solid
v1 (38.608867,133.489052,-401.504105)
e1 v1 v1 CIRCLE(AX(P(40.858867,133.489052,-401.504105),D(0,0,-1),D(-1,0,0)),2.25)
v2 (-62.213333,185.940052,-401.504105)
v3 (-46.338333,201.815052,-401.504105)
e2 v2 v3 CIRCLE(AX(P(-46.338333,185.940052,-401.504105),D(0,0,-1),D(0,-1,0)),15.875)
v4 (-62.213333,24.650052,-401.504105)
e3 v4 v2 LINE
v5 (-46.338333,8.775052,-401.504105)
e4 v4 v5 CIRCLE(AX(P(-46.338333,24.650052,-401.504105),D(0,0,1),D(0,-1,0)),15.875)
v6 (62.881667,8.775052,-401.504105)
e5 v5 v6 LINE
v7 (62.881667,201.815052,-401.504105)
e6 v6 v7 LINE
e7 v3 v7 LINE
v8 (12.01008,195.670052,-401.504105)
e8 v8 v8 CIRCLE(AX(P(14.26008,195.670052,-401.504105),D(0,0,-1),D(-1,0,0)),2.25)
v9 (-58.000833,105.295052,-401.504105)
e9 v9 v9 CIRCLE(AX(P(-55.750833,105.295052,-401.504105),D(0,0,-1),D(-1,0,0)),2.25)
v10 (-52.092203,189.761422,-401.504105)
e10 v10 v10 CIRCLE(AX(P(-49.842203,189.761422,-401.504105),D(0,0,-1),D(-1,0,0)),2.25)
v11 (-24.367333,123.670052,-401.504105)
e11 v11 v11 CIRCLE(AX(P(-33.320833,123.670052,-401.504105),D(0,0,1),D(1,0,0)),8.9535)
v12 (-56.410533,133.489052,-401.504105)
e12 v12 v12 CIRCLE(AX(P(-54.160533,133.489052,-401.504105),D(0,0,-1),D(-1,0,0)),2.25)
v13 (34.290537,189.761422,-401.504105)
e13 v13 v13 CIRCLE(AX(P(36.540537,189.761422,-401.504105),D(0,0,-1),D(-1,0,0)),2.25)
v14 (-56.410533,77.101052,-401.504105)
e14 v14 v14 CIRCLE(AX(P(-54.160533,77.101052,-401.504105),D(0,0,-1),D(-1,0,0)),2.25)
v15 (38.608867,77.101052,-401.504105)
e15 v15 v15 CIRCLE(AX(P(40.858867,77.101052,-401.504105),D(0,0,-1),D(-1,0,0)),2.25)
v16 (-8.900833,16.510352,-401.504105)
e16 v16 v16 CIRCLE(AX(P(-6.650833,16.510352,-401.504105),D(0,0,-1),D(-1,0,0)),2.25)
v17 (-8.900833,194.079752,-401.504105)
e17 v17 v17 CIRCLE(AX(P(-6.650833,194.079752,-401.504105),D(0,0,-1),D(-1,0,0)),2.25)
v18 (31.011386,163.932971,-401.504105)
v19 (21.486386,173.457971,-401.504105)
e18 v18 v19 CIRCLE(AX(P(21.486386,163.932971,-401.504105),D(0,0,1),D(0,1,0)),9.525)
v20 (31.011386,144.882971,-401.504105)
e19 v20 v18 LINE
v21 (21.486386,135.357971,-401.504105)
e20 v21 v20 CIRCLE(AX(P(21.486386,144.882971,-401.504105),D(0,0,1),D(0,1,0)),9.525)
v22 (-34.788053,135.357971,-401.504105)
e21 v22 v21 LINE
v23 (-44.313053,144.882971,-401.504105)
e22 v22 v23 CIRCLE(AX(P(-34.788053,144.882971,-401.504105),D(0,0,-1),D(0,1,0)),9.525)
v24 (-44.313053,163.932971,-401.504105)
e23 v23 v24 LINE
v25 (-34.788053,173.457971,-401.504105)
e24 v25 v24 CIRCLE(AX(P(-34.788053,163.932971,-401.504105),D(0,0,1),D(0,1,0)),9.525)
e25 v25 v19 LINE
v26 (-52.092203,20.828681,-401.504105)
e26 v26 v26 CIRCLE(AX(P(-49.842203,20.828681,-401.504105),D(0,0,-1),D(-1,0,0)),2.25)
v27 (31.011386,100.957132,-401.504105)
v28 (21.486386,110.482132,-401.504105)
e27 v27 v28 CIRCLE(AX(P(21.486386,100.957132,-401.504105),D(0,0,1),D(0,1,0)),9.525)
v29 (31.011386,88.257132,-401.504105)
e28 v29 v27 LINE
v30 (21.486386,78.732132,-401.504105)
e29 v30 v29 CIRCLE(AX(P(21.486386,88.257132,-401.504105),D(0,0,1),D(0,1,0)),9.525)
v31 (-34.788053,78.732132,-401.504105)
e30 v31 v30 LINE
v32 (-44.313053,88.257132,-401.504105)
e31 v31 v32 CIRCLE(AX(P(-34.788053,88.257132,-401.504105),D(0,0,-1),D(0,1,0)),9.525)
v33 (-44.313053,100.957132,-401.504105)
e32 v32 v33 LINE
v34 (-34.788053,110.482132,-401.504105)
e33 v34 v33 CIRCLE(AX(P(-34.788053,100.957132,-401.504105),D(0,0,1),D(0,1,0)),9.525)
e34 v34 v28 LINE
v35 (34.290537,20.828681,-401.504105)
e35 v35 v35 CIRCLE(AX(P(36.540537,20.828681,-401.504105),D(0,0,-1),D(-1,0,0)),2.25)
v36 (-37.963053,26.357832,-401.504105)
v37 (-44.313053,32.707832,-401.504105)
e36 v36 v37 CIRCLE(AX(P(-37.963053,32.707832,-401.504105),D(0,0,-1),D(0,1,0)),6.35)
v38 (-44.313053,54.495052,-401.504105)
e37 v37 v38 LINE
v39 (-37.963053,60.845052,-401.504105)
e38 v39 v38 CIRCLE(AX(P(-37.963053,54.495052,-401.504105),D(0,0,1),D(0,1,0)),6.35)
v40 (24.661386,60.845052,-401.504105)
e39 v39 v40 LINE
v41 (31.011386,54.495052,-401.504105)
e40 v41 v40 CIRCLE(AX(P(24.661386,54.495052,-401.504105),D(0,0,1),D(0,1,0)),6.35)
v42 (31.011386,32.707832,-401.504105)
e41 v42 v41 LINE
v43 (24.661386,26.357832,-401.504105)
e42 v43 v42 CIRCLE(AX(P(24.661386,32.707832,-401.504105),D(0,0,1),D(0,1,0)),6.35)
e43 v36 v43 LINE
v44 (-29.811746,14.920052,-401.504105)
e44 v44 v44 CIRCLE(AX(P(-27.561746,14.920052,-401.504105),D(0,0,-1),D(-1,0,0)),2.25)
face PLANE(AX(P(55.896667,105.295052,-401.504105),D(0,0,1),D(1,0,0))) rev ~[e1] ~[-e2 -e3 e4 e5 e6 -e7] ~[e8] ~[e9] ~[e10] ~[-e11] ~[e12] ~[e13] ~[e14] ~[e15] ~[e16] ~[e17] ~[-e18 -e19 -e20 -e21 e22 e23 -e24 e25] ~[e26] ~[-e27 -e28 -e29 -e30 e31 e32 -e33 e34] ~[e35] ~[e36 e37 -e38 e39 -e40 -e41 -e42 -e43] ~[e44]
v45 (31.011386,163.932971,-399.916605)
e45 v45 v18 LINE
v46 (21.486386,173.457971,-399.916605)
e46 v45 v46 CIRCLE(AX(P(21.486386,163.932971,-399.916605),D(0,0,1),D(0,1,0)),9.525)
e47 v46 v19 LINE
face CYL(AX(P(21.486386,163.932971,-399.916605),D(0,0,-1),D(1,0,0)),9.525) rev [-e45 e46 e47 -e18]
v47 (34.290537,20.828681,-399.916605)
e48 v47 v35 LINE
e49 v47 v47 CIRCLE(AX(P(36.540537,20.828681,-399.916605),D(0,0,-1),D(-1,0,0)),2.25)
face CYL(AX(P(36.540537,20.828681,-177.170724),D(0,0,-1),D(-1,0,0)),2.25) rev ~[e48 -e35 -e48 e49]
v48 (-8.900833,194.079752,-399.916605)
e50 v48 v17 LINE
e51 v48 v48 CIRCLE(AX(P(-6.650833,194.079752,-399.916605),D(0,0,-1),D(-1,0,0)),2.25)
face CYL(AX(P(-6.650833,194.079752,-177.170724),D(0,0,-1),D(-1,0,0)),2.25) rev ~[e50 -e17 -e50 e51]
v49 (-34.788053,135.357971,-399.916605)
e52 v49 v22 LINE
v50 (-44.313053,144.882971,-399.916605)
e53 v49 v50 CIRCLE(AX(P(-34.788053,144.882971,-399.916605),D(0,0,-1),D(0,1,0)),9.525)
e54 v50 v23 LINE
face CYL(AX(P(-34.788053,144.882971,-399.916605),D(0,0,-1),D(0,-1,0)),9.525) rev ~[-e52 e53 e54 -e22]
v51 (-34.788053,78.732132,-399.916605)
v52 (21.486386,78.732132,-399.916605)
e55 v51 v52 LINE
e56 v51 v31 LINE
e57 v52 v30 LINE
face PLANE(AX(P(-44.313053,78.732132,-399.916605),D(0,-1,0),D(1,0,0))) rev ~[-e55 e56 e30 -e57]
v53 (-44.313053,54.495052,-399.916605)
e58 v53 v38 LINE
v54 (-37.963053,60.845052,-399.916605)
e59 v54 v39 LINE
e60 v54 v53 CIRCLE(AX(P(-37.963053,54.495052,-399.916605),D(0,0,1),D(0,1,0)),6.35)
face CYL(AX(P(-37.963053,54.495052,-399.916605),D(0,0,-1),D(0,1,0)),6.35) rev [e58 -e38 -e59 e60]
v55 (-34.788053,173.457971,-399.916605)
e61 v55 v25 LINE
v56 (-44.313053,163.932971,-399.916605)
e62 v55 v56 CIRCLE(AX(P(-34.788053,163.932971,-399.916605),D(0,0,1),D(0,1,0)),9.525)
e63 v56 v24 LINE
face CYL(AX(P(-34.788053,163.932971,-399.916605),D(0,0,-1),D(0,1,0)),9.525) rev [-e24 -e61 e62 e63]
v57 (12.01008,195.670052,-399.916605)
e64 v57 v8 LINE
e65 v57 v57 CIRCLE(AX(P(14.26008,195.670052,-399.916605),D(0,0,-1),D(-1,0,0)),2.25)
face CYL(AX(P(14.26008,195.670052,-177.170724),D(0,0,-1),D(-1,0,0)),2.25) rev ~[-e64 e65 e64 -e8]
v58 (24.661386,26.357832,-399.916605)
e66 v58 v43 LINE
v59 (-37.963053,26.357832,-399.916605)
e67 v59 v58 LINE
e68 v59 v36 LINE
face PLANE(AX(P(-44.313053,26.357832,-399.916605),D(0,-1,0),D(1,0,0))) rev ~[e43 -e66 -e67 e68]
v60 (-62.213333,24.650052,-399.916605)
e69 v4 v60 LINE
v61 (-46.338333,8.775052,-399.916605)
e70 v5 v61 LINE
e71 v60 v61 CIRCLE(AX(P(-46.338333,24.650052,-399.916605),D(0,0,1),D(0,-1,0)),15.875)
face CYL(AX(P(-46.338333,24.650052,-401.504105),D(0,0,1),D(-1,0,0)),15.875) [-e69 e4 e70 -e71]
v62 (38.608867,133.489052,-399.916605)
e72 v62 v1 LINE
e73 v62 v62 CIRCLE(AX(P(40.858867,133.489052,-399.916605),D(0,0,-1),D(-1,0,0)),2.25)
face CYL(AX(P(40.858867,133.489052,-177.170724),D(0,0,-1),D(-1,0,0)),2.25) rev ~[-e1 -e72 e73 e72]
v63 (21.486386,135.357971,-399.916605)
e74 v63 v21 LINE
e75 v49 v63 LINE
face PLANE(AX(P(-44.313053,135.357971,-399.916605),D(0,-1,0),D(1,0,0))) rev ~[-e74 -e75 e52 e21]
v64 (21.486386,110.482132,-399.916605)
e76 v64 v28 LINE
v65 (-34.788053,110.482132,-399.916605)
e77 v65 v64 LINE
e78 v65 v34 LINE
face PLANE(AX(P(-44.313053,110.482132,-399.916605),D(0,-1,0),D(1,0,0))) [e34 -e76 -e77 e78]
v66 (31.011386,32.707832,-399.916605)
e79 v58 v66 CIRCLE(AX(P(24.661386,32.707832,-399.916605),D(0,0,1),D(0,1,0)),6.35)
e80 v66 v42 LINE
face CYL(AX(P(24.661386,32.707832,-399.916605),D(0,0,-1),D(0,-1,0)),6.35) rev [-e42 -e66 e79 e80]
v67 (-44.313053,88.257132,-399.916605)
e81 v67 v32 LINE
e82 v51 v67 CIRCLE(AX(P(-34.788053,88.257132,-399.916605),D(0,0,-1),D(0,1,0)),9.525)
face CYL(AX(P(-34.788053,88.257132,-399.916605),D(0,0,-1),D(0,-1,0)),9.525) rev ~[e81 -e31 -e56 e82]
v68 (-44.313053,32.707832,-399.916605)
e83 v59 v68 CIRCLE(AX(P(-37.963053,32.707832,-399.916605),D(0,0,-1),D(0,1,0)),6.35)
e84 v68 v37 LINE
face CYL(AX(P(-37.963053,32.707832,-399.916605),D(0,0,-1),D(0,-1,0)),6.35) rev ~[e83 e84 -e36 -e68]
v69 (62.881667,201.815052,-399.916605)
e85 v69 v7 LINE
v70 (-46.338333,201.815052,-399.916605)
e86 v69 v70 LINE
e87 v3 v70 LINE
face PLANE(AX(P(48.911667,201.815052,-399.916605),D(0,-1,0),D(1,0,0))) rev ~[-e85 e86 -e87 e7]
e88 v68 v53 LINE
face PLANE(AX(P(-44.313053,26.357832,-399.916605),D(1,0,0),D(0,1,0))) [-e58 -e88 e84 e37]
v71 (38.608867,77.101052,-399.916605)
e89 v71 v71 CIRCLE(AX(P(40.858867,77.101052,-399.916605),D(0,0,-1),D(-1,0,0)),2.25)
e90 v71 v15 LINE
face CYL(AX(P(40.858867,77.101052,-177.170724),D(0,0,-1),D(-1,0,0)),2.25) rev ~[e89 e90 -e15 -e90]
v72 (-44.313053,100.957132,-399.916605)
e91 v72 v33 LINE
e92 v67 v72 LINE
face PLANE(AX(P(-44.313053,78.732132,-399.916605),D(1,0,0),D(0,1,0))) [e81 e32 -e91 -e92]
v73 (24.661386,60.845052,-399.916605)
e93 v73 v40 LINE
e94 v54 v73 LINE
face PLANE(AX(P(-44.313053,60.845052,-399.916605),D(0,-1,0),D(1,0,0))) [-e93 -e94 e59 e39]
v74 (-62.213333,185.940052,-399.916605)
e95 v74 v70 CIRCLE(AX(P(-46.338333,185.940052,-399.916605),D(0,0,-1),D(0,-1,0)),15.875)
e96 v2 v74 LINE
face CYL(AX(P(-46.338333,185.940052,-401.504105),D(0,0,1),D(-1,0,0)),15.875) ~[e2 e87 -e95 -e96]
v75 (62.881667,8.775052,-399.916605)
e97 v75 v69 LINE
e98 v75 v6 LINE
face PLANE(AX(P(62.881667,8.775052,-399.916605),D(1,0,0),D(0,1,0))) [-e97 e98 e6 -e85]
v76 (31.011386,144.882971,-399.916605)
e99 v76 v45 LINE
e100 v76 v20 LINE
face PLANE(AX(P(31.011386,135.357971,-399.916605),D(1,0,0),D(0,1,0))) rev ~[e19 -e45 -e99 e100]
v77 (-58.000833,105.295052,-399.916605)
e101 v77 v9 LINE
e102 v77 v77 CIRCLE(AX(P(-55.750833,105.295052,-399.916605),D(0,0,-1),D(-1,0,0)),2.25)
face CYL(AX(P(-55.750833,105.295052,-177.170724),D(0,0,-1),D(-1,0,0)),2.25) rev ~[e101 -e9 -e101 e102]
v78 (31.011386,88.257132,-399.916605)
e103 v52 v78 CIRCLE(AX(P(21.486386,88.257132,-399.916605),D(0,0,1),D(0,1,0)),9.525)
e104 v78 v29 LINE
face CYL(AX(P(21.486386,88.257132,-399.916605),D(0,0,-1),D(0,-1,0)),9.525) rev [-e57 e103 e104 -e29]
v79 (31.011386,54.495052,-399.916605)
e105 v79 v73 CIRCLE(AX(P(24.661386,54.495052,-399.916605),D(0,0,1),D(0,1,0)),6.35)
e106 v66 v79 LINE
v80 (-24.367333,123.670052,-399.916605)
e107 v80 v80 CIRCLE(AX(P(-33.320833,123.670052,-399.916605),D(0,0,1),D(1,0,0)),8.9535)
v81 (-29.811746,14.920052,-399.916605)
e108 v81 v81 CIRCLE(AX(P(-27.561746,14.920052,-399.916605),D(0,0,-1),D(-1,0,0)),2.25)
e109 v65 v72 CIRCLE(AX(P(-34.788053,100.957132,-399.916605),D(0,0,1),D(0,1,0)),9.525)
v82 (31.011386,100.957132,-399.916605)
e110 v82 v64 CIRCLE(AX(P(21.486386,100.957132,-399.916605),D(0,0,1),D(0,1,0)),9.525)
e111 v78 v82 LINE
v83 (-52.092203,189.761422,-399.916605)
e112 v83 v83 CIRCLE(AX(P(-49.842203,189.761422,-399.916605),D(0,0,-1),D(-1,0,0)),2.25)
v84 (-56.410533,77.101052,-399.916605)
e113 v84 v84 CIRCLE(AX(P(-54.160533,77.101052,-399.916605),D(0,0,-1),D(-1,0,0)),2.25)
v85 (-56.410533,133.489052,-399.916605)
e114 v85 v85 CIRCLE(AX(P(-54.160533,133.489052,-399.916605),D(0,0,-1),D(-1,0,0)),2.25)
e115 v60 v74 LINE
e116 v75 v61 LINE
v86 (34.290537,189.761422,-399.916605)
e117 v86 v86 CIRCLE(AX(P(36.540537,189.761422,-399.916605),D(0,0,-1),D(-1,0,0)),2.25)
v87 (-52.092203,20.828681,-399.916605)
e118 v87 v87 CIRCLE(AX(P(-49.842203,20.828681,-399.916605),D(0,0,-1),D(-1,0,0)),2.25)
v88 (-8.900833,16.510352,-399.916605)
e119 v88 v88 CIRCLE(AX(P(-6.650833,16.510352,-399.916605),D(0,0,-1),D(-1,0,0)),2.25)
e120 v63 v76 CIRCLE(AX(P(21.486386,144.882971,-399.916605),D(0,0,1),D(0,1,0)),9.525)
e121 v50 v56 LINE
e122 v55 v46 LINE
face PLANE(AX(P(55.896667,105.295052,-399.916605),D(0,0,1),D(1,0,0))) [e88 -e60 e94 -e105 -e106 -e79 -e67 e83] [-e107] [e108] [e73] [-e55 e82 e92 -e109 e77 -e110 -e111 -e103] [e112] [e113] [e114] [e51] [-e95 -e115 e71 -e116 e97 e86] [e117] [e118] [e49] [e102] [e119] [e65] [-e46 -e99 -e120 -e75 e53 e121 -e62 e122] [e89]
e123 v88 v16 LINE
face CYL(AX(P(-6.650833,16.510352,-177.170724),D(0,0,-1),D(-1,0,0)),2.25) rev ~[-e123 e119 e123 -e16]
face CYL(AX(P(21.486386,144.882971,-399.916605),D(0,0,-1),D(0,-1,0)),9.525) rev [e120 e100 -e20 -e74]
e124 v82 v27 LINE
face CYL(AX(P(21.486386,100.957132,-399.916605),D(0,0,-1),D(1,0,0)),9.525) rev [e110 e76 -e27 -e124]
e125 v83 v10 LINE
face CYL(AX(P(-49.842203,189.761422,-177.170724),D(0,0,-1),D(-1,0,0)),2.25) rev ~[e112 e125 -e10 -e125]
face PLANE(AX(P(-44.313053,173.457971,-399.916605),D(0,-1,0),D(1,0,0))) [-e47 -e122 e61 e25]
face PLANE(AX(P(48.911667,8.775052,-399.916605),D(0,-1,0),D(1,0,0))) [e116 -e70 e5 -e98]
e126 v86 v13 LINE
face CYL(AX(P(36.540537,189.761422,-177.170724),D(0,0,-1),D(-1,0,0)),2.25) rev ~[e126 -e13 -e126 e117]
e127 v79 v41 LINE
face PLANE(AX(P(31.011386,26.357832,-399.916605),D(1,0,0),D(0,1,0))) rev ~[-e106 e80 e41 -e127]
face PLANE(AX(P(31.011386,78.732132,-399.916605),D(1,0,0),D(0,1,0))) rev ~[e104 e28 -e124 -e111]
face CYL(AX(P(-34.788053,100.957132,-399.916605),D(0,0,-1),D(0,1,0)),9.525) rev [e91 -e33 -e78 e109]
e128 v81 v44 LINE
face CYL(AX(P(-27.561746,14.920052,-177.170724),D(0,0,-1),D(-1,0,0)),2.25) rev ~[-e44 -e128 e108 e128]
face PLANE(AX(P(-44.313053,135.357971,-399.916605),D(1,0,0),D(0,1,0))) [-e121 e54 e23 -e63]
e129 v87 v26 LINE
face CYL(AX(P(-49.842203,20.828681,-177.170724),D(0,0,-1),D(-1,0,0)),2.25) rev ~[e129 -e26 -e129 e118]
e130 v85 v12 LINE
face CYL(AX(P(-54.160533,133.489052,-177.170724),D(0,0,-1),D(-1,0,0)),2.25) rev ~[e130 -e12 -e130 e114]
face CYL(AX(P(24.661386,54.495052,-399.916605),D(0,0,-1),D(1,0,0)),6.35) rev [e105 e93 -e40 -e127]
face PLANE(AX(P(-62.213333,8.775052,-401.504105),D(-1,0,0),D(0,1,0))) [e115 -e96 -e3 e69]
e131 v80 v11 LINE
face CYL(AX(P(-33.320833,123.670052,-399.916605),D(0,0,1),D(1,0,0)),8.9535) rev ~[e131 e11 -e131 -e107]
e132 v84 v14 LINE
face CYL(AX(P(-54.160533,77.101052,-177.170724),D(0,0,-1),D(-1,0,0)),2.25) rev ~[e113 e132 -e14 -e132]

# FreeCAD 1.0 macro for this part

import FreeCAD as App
import Part
import Sketcher
Q = App.Units.Quantity


def edges_at(feature, points):
    """Names of the edges that pass closest to the given points."""
    edges = feature.Shape.Edges
    near = lambda p: min(range(len(edges)), key=lambda i: edges[i].distToShape(Part.Vertex(*p))[0])
    return sorted({f"Edge{near(p) + 1}" for p in points})

doc = App.newDocument("Part")
body = doc.addObject("PartDesign::Body", "Body")

# Sketch on XY plane
sketch1 = body.newObject("Sketcher::SketchObject", "Sketch")
sketch1.AttachmentSupport = (doc.getObject("XY_Plane"), [""])
sketch1.MapMode = "FlatFace"
sketch1.AttachmentOffset = App.Placement(App.Vector(0, 0, -401.504105), App.Rotation())
sketch1.addGeometry(Part.LineSegment(App.Vector(-62.213333, 201.815052, 0), App.Vector(-62.213333, 8.775052, 0)), False)
sketch1.addGeometry(Part.LineSegment(App.Vector(-62.213333, 8.775052, 0), App.Vector(48.911667, 8.775052, 0)), False)
sketch1.addGeometry(Part.LineSegment(App.Vector(48.911667, 8.775052, 0), App.Vector(48.911667, 201.815052, 0)), False)
sketch1.addGeometry(Part.LineSegment(App.Vector(48.911667, 201.815052, 0), App.Vector(-62.213333, 201.815052, 0)), False)
sketch1.addConstraint(Sketcher.Constraint("Coincident", 0, 2, 1, 1))
sketch1.addConstraint(Sketcher.Constraint("Coincident", 1, 2, 2, 1))
sketch1.addConstraint(Sketcher.Constraint("Coincident", 2, 2, 3, 1))
sketch1.addConstraint(Sketcher.Constraint("Coincident", 3, 2, 0, 1))
sketch1.addConstraint(Sketcher.Constraint("Vertical", 0))
sketch1.addConstraint(Sketcher.Constraint("Horizontal", 1))
sketch1.addConstraint(Sketcher.Constraint("Vertical", 2))
sketch1.addConstraint(Sketcher.Constraint("Horizontal", 3))
sketch1.addConstraint(Sketcher.Constraint("DistanceY", 0, 2, 0, 1, Q("7.6 in")))
sketch1.addConstraint(Sketcher.Constraint("DistanceX", 1, 1, 1, 2, Q("4.375 in")))
sketch1.addConstraint(Sketcher.Constraint("DistanceY", -1, 1, 0, 2, Q("8.775052 mm")))
sketch1.addConstraint(Sketcher.Constraint("DistanceX", 0, 2, -1, 1, Q("62.213333 mm")))
pad1 = body.newObject("PartDesign::Pad", "Pad")
pad1.Profile = sketch1
pad1.Length = Q("0.0625 in")

# Sketch on XY plane
sketch2 = body.newObject("Sketcher::SketchObject", "Sketch001")
sketch2.AttachmentSupport = (doc.getObject("XY_Plane"), [""])
sketch2.MapMode = "FlatFace"
sketch2.AttachmentOffset = App.Placement(App.Vector(0, 0, -399.916605), App.Rotation())
sketch2.addGeometry(Part.Circle(App.Vector(36.540537, 189.761422, 0), App.Vector(0, 0, 1), 2.25), False)
sketch2.addGeometry(Part.Circle(App.Vector(-6.650833, 194.079752, 0), App.Vector(0, 0, 1), 2.25), False)
sketch2.addGeometry(Part.Circle(App.Vector(-49.842203, 189.761422, 0), App.Vector(0, 0, 1), 2.25), False)
sketch2.addGeometry(Part.Circle(App.Vector(-54.160533, 133.489052, 0), App.Vector(0, 0, 1), 2.25), False)
sketch2.addGeometry(Part.Circle(App.Vector(-54.160533, 77.101052, 0), App.Vector(0, 0, 1), 2.25), False)
sketch2.addGeometry(Part.Circle(App.Vector(-49.842203, 20.828681, 0), App.Vector(0, 0, 1), 2.25), False)
sketch2.addGeometry(Part.Circle(App.Vector(-6.650833, 16.510352, 0), App.Vector(0, 0, 1), 2.25), False)
sketch2.addGeometry(Part.Circle(App.Vector(36.540537, 20.828681, 0), App.Vector(0, 0, 1), 2.25), False)
sketch2.addGeometry(Part.Circle(App.Vector(40.858867, 77.101052, 0), App.Vector(0, 0, 1), 2.25), False)
sketch2.addGeometry(Part.Circle(App.Vector(40.858867, 133.489052, 0), App.Vector(0, 0, 1), 2.25), False)
sketch2.addGeometry(Part.Circle(App.Vector(14.26008, 195.670052, 0), App.Vector(0, 0, 1), 2.25), False)
sketch2.addGeometry(Part.Circle(App.Vector(-55.750833, 105.295052, 0), App.Vector(0, 0, 1), 2.25), False)
sketch2.addGeometry(Part.Circle(App.Vector(-27.561746, 14.920052, 0), App.Vector(0, 0, 1), 2.25), False)
sketch2.addConstraint(Sketcher.Constraint("Equal", 0, 1))
sketch2.addConstraint(Sketcher.Constraint("Equal", 1, 2))
sketch2.addConstraint(Sketcher.Constraint("Equal", 2, 3))
sketch2.addConstraint(Sketcher.Constraint("Equal", 3, 4))
sketch2.addConstraint(Sketcher.Constraint("Equal", 4, 5))
sketch2.addConstraint(Sketcher.Constraint("Equal", 5, 6))
sketch2.addConstraint(Sketcher.Constraint("Equal", 6, 7))
sketch2.addConstraint(Sketcher.Constraint("Equal", 7, 8))
sketch2.addConstraint(Sketcher.Constraint("Equal", 8, 9))
sketch2.addConstraint(Sketcher.Constraint("Equal", 9, 10))
sketch2.addConstraint(Sketcher.Constraint("Equal", 10, 11))
sketch2.addConstraint(Sketcher.Constraint("Equal", 11, 12))
sketch2.addConstraint(Sketcher.Constraint("Horizontal", 0, 3, 2, 3))
sketch2.addConstraint(Sketcher.Constraint("Horizontal", 5, 3, 7, 3))
sketch2.addConstraint(Sketcher.Constraint("Horizontal", 4, 3, 8, 3))
sketch2.addConstraint(Sketcher.Constraint("Horizontal", 3, 3, 9, 3))
sketch2.addConstraint(Sketcher.Constraint("Vertical", 3, 3, 4, 3))
sketch2.addConstraint(Sketcher.Constraint("Vertical", 2, 3, 5, 3))
sketch2.addConstraint(Sketcher.Constraint("Vertical", 1, 3, 6, 3))
sketch2.addConstraint(Sketcher.Constraint("Vertical", 0, 3, 7, 3))
sketch2.addConstraint(Sketcher.Constraint("Vertical", 8, 3, 9, 3))
sketch2.addConstraint(Sketcher.Constraint("Diameter", 0, Q("4.5 mm")))
sketch2.addConstraint(Sketcher.Constraint("DistanceY", 4, 3, 3, 3, Q("2.22 in")))
sketch2.addConstraint(Sketcher.Constraint("DistanceY", 11, 3, 3, 3, Q("1.11 in")))
sketch2.addConstraint(Sketcher.Constraint("DistanceX", 3, 3, 1, 3, Q("47.5097 mm")))
sketch2.addConstraint(Sketcher.Constraint("DistanceY", 3, 3, 1, 3, Q("60.5907 mm")))
sketch2.addConstraint(Sketcher.Constraint("DistanceY", 6, 3, 4, 3, Q("60.5907 mm")))
sketch2.addConstraint(Sketcher.Constraint("DistanceX", 6, 3, 8, 3, Q("47.5097 mm")))
sketch2.addConstraint(Sketcher.Constraint("DistanceY", 1, 3, 10, 3, Q("1.5903 mm")))
sketch2.addConstraint(Sketcher.Constraint("DistanceX", 11, 3, 3, 3, Q("1.5903 mm")))
sketch2.addConstraint(Sketcher.Constraint("DistanceY", 12, 3, 6, 3, Q("1.5903 mm")))
sketch2.addConstraint(Sketcher.Constraint("DistanceY", -1, 1, 0, 3, Q("189.761422 mm")))
sketch2.addConstraint(Sketcher.Constraint("DistanceY", -1, 1, 1, 3, Q("194.079752 mm")))
sketch2.addConstraint(Sketcher.Constraint("DistanceY", -1, 1, 5, 3, Q("20.828681 mm")))
sketch2.addConstraint(Sketcher.Constraint("DistanceX", -1, 1, 10, 3, Q("14.26008 mm")))
sketch2.addConstraint(Sketcher.Constraint("DistanceX", 1, 3, 0, 3, Q("43.19137 mm")))
sketch2.addConstraint(Sketcher.Constraint("DistanceX", 2, 3, 1, 3, Q("43.19137 mm")))
sketch2.addConstraint(Sketcher.Constraint("DistanceX", -1, 1, 0, 3, Q("36.540537 mm")))
sketch2.addConstraint(Sketcher.Constraint("DistanceX", 12, 3, -1, 1, Q("27.561746 mm")))
doc.recompute()
hole = body.newObject("PartDesign::Hole", "Hole")
hole.Profile = sketch2
hole.ThreadType = "None"
hole.Diameter = 4.5
hole.DepthType = "ThroughAll"
doc.recompute()

fillet = body.newObject("PartDesign::Fillet", "Fillet")
fillet.Base = (hole, edges_at(hole, [(-62.213, 201.815, -400.71), (-62.213, 8.775, -400.71)]))
fillet.Radius = Q("0.625 in")

# Sketch on XY plane
sketch3 = body.newObject("Sketcher::SketchObject", "Sketch002")
sketch3.AttachmentSupport = (doc.getObject("XY_Plane"), [""])
sketch3.MapMode = "FlatFace"
sketch3.AttachmentOffset = App.Placement(App.Vector(0, 0, -399.916605), App.Rotation())
sketch3.addGeometry(Part.Circle(App.Vector(-34.590833, 43.382552, 0), App.Vector(0, 0, 1), 2.4003), False)
sketch3.addGeometry(Part.Circle(App.Vector(21.289167, 43.382552, 0), App.Vector(0, 0, 1), 2.4003), False)
sketch3.addGeometry(Part.Circle(App.Vector(-20.884725, 142.590767, 0), App.Vector(0, 0, 1), 3), False)
sketch3.addGeometry(Part.Circle(App.Vector(7.583059, 166.225176, 0), App.Vector(0, 0, 1), 3), False)
sketch3.addGeometry(Part.Circle(App.Vector(3.509167, 43.382552, 0), App.Vector(0, 0, 1), 6.477), False)
sketch3.addGeometry(Part.Circle(App.Vector(-16.810833, 43.382552, 0), App.Vector(0, 0, 1), 6.477), False)
sketch3.addGeometry(Part.Circle(App.Vector(-33.320833, 123.670052, 0), App.Vector(0, 0, 1), 6.477), False)
sketch3.addGeometry(Part.Circle(App.Vector(-6.650833, 154.407971, 0), App.Vector(0, 0, 1), 10.762), False)
sketch3.addGeometry(Part.Circle(App.Vector(-6.650833, 94.607132, 0), App.Vector(0, 0, 1), 10.762), False)
sketch3.addConstraint(Sketcher.Constraint("Equal", 0, 1))
sketch3.addConstraint(Sketcher.Constraint("Equal", 2, 3))
sketch3.addConstraint(Sketcher.Constraint("Equal", 4, 5))
sketch3.addConstraint(Sketcher.Constraint("Equal", 5, 6))
sketch3.addConstraint(Sketcher.Constraint("Equal", 7, 8))
sketch3.addConstraint(Sketcher.Constraint("Horizontal", 0, 3, 1, 3))
sketch3.addConstraint(Sketcher.Constraint("Horizontal", 1, 3, 4, 3))
sketch3.addConstraint(Sketcher.Constraint("Horizontal", 4, 3, 5, 3))
sketch3.addConstraint(Sketcher.Constraint("Vertical", 7, 3, 8, 3))
sketch3.addConstraint(Sketcher.Constraint("Diameter", 4, Q("0.51 in")))
sketch3.addConstraint(Sketcher.Constraint("Diameter", 0, Q("0.189 in")))
sketch3.addConstraint(Sketcher.Constraint("DistanceX", 0, 3, 1, 3, Q("2.2 in")))
sketch3.addConstraint(Sketcher.Constraint("DistanceX", 4, 3, 1, 3, Q("0.7 in")))
sketch3.addConstraint(Sketcher.Constraint("DistanceX", 0, 3, 5, 3, Q("0.7 in")))
sketch3.addConstraint(Sketcher.Constraint("DistanceX", 7, 3, 4, 3, Q("0.4 in")))
sketch3.addConstraint(Sketcher.Constraint("Diameter", 2, Q("6 mm")))
sketch3.addConstraint(Sketcher.Constraint("Diameter", 7, Q("21.524 mm")))
sketch3.addConstraint(Sketcher.Constraint("DistanceX", 0, 3, 6, 3, Q("0.05 in")))
sketch3.addConstraint(Sketcher.Constraint("DistanceY", 0, 3, 6, 3, Q("80.2875 mm")))
sketch3.addConstraint(Sketcher.Constraint("DistanceY", -1, 1, 0, 3, Q("43.382552 mm")))
sketch3.addConstraint(Sketcher.Constraint("DistanceX", -1, 1, 3, 3, Q("7.583059 mm")))
sketch3.addConstraint(Sketcher.Constraint("DistanceY", -1, 1, 7, 3, Q("154.407971 mm")))
sketch3.addConstraint(Sketcher.Constraint("DistanceY", -1, 1, 8, 3, Q("94.607132 mm")))
sketch3.addConstraint(Sketcher.Constraint("DistanceX", 0, 3, 2, 3, Q("13.706108 mm")))
sketch3.addConstraint(Sketcher.Constraint("DistanceY", 2, 3, 3, 3, Q("23.634409 mm")))
sketch3.addConstraint(Sketcher.Constraint("DistanceX", 3, 3, 1, 3, Q("13.706108 mm")))
sketch3.addConstraint(Sketcher.Constraint("DistanceY", -1, 1, 2, 3, Q("142.590767 mm")))
pocket1 = body.newObject("PartDesign::Pocket", "Pocket")
pocket1.Profile = sketch3
pocket1.Type = "ThroughAll"

# Sketch on XY plane
sketch4 = body.newObject("Sketcher::SketchObject", "Sketch003")
sketch4.AttachmentSupport = (doc.getObject("XY_Plane"), [""])
sketch4.MapMode = "FlatFace"
sketch4.AttachmentOffset = App.Placement(App.Vector(0, 0, -399.916605), App.Rotation())
sketch4.addGeometry(Part.LineSegment(App.Vector(48.911667, 201.815052, 0), App.Vector(48.911667, 8.775052, 0)), False)
sketch4.addGeometry(Part.LineSegment(App.Vector(48.911667, 8.775052, 0), App.Vector(62.881667, 8.775052, 0)), False)
sketch4.addGeometry(Part.LineSegment(App.Vector(62.881667, 8.775052, 0), App.Vector(62.881667, 201.815052, 0)), False)
sketch4.addGeometry(Part.LineSegment(App.Vector(62.881667, 201.815052, 0), App.Vector(48.911667, 201.815052, 0)), False)
sketch4.addConstraint(Sketcher.Constraint("Coincident", 0, 2, 1, 1))
sketch4.addConstraint(Sketcher.Constraint("Coincident", 1, 2, 2, 1))
sketch4.addConstraint(Sketcher.Constraint("Coincident", 2, 2, 3, 1))
sketch4.addConstraint(Sketcher.Constraint("Coincident", 3, 2, 0, 1))
sketch4.addConstraint(Sketcher.Constraint("Vertical", 0))
sketch4.addConstraint(Sketcher.Constraint("Horizontal", 1))
sketch4.addConstraint(Sketcher.Constraint("Vertical", 2))
sketch4.addConstraint(Sketcher.Constraint("Horizontal", 3))
sketch4.addConstraint(Sketcher.Constraint("DistanceY", 0, 2, 0, 1, Q("7.6 in")))
sketch4.addConstraint(Sketcher.Constraint("DistanceX", 1, 1, 1, 2, Q("0.55 in")))
sketch4.addConstraint(Sketcher.Constraint("DistanceY", -1, 1, 0, 2, Q("8.775052 mm")))
sketch4.addConstraint(Sketcher.Constraint("DistanceX", -1, 1, 0, 2, Q("48.911667 mm")))
pad2 = body.newObject("PartDesign::Pad", "Pad001")
pad2.Profile = sketch4
pad2.Length = Q("0.0625 in")
pad2.Reversed = True

# Sketch on XY plane
sketch5 = body.newObject("Sketcher::SketchObject", "Sketch004")
sketch5.AttachmentSupport = (doc.getObject("XY_Plane"), [""])
sketch5.MapMode = "FlatFace"
sketch5.AttachmentOffset = App.Placement(App.Vector(0, 0, -399.916605), App.Rotation())
sketch5.addGeometry(Part.LineSegment(App.Vector(-44.313053, 173.457971, 0), App.Vector(-44.313053, 135.357971, 0)), False)
sketch5.addGeometry(Part.LineSegment(App.Vector(-44.313053, 135.357971, 0), App.Vector(31.011386, 135.357971, 0)), False)
sketch5.addGeometry(Part.LineSegment(App.Vector(31.011386, 135.357971, 0), App.Vector(31.011386, 173.457971, 0)), False)
sketch5.addGeometry(Part.LineSegment(App.Vector(31.011386, 173.457971, 0), App.Vector(-44.313053, 173.457971, 0)), False)
sketch5.addGeometry(Part.Circle(App.Vector(-20.884725, 142.590767, 0), App.Vector(0, 0, 1), 3), False)
sketch5.addGeometry(Part.Circle(App.Vector(-6.650833, 154.407971, 0), App.Vector(0, 0, 1), 10.762), False)
sketch5.addGeometry(Part.Circle(App.Vector(7.583059, 166.225176, 0), App.Vector(0, 0, 1), 3), False)
sketch5.addGeometry(Part.LineSegment(App.Vector(-44.313053, 110.482132, 0), App.Vector(-44.313053, 78.732132, 0)), False)
sketch5.addGeometry(Part.LineSegment(App.Vector(-44.313053, 78.732132, 0), App.Vector(31.011386, 78.732132, 0)), False)
sketch5.addGeometry(Part.LineSegment(App.Vector(31.011386, 78.732132, 0), App.Vector(31.011386, 110.482132, 0)), False)
sketch5.addGeometry(Part.LineSegment(App.Vector(31.011386, 110.482132, 0), App.Vector(-44.313053, 110.482132, 0)), False)
sketch5.addGeometry(Part.Circle(App.Vector(-6.650833, 94.607132, 0), App.Vector(0, 0, 1), 10.762), False)
sketch5.addGeometry(Part.LineSegment(App.Vector(-44.313053, 60.845052, 0), App.Vector(-44.313053, 26.357832, 0)), False)
sketch5.addGeometry(Part.LineSegment(App.Vector(-44.313053, 26.357832, 0), App.Vector(31.011386, 26.357832, 0)), False)
sketch5.addGeometry(Part.LineSegment(App.Vector(31.011386, 26.357832, 0), App.Vector(31.011386, 60.845052, 0)), False)
sketch5.addGeometry(Part.LineSegment(App.Vector(31.011386, 60.845052, 0), App.Vector(-44.313053, 60.845052, 0)), False)
sketch5.addGeometry(Part.Circle(App.Vector(-34.590833, 43.382552, 0), App.Vector(0, 0, 1), 2.4003), False)
sketch5.addGeometry(Part.Circle(App.Vector(-16.810833, 43.382552, 0), App.Vector(0, 0, 1), 6.477), False)
sketch5.addGeometry(Part.Circle(App.Vector(3.509167, 43.382552, 0), App.Vector(0, 0, 1), 6.477), False)
sketch5.addGeometry(Part.Circle(App.Vector(21.289167, 43.382552, 0), App.Vector(0, 0, 1), 2.4003), False)
sketch5.addGeometry(Part.Circle(App.Vector(-33.320833, 123.670052, 0), App.Vector(0, 0, 1), 8.9535), False)
sketch5.addGeometry(Part.Circle(App.Vector(-33.320833, 123.670052, 0), App.Vector(0, 0, 1), 6.477), False)
sketch5.addConstraint(Sketcher.Constraint("Coincident", 0, 2, 1, 1))
sketch5.addConstraint(Sketcher.Constraint("Coincident", 1, 2, 2, 1))
sketch5.addConstraint(Sketcher.Constraint("Coincident", 2, 2, 3, 1))
sketch5.addConstraint(Sketcher.Constraint("Coincident", 3, 2, 0, 1))
sketch5.addConstraint(Sketcher.Constraint("Coincident", 7, 2, 8, 1))
sketch5.addConstraint(Sketcher.Constraint("Coincident", 8, 2, 9, 1))
sketch5.addConstraint(Sketcher.Constraint("Coincident", 9, 2, 10, 1))
sketch5.addConstraint(Sketcher.Constraint("Coincident", 10, 2, 7, 1))
sketch5.addConstraint(Sketcher.Constraint("Coincident", 12, 2, 13, 1))
sketch5.addConstraint(Sketcher.Constraint("Coincident", 13, 2, 14, 1))
sketch5.addConstraint(Sketcher.Constraint("Coincident", 14, 2, 15, 1))
sketch5.addConstraint(Sketcher.Constraint("Coincident", 15, 2, 12, 1))
sketch5.addConstraint(Sketcher.Constraint("Vertical", 0))
sketch5.addConstraint(Sketcher.Constraint("Horizontal", 1))
sketch5.addConstraint(Sketcher.Constraint("Vertical", 2))
sketch5.addConstraint(Sketcher.Constraint("Horizontal", 3))
sketch5.addConstraint(Sketcher.Constraint("Vertical", 7))
sketch5.addConstraint(Sketcher.Constraint("Horizontal", 8))
sketch5.addConstraint(Sketcher.Constraint("Vertical", 9))
sketch5.addConstraint(Sketcher.Constraint("Horizontal", 10))
sketch5.addConstraint(Sketcher.Constraint("Vertical", 12))
sketch5.addConstraint(Sketcher.Constraint("Horizontal", 13))
sketch5.addConstraint(Sketcher.Constraint("Vertical", 14))
sketch5.addConstraint(Sketcher.Constraint("Horizontal", 15))
sketch5.addConstraint(Sketcher.Constraint("Coincident", 21, 3, 20, 3))
sketch5.addConstraint(Sketcher.Constraint("Equal", 4, 6))
sketch5.addConstraint(Sketcher.Constraint("Equal", 5, 11))
sketch5.addConstraint(Sketcher.Constraint("Equal", 17, 18))
sketch5.addConstraint(Sketcher.Constraint("Equal", 16, 19))
sketch5.addConstraint(Sketcher.Constraint("Equal", 18, 21))
sketch5.addConstraint(Sketcher.Constraint("Horizontal", 16, 3, 17, 3))
sketch5.addConstraint(Sketcher.Constraint("Horizontal", 17, 3, 18, 3))
sketch5.addConstraint(Sketcher.Constraint("Horizontal", 18, 3, 19, 3))
sketch5.addConstraint(Sketcher.Constraint("Vertical", 5, 3, 11, 3))
sketch5.addConstraint(Sketcher.Constraint("Vertical", 3, 2, 7, 2))
sketch5.addConstraint(Sketcher.Constraint("Vertical", 2, 2, 8, 2))
sketch5.addConstraint(Sketcher.Constraint("Vertical", 10, 2, 12, 2))
sketch5.addConstraint(Sketcher.Constraint("Vertical", 9, 2, 13, 2))
sketch5.addConstraint(Sketcher.Constraint("Diameter", 17, Q("0.51 in")))
sketch5.addConstraint(Sketcher.Constraint("Diameter", 16, Q("0.189 in")))
sketch5.addConstraint(Sketcher.Constraint("Diameter", 20, Q("0.705 in")))
sketch5.addConstraint(Sketcher.Constraint("DistanceY", 0, 2, 0, 1, Q("1.5 in")))
sketch5.addConstraint(Sketcher.Constraint("DistanceY", 7, 2, 7, 1, Q("1.25 in")))
sketch5.addConstraint(Sketcher.Constraint("DistanceX", 16, 3, 11, 3, Q("1.1 in")))
sketch5.addConstraint(Sketcher.Constraint("DistanceX", 16, 3, 17, 3, Q("0.7 in")))
sketch5.addConstraint(Sketcher.Constraint("DistanceX", 17, 3, 18, 3, Q("0.8 in")))
sketch5.addConstraint(Sketcher.Constraint("DistanceX", 18, 3, 19, 3, Q("0.7 in")))
sketch5.addConstraint(Sketcher.Constraint("Diameter", 4, Q("6 mm")))
sketch5.addConstraint(Sketcher.Constraint("Diameter", 5, Q("21.524 mm")))
sketch5.addConstraint(Sketcher.Constraint("DistanceX", 20, 3, 11, 3, Q("1.05 in")))
sketch5.addConstraint(Sketcher.Constraint("DistanceY", 0, 2, 5, 3, Q("0.75 in")))
sketch5.addConstraint(Sketcher.Constraint("DistanceY", 7, 2, 11, 3, Q("0.625 in")))
sketch5.addConstraint(Sketcher.Constraint("DistanceY", 19, 3, 14, 2, Q("0.6875 in")))
sketch5.addConstraint(Sketcher.Constraint("DistanceX", 1, 1, 1, 2, Q("75.324439 mm")))
sketch5.addConstraint(Sketcher.Constraint("DistanceY", 12, 2, 12, 1, Q("34.487219 mm")))
sketch5.addConstraint(Sketcher.Constraint("DistanceY", 16, 3, 20, 3, Q("80.2875 mm")))
sketch5.addConstraint(Sketcher.Constraint("DistanceY", 12, 2, 7, 2, Q("52.3743 mm")))
sketch5.addConstraint(Sketcher.Constraint("DistanceY", -1, 1, 5, 3, Q("154.407971 mm")))
sketch5.addConstraint(Sketcher.Constraint("DistanceX", -1, 1, 6, 3, Q("7.583059 mm")))
sketch5.addConstraint(Sketcher.Constraint("DistanceY", -1, 1, 11, 3, Q("94.607132 mm")))
sketch5.addConstraint(Sketcher.Constraint("DistanceX", 4, 3, 5, 3, Q("14.233892 mm")))
sketch5.addConstraint(Sketcher.Constraint("DistanceX", 5, 3, 6, 3, Q("14.233892 mm")))
sketch5.addConstraint(Sketcher.Constraint("DistanceY", 4, 3, 6, 3, Q("23.634409 mm")))
sketch5.addConstraint(Sketcher.Constraint("DistanceX", 0, 2, 20, 3, Q("10.992219 mm")))
sketch5.addConstraint(Sketcher.Constraint("DistanceY", -1, 1, 4, 3, Q("142.590767 mm")))
pocket2 = body.newObject("PartDesign::Pocket", "Pocket001")
pocket2.Profile = sketch5
pocket2.Length = Q("0.0625 in")
doc.recompute()

fillet2 = body.newObject("PartDesign::Fillet", "Fillet001")
fillet2.Base = (pocket2, edges_at(pocket2, [
    (31.011, 135.358, -400.71),
    (-44.313, 135.358, -400.71),
    (-44.313, 173.458, -400.71),
    (31.011, 173.458, -400.71),
]))
fillet2.Radius = Q("0.375 in")
doc.recompute()

fillet3 = body.newObject("PartDesign::Fillet", "Fillet002")
fillet3.Base = (fillet2, edges_at(fillet2, [
    (-44.313, 60.845, -400.71),
    (31.011, 60.845, -400.71),
    (31.011, 26.358, -400.71),
    (-44.313, 26.358, -400.71),
]))
fillet3.Radius = Q("0.25 in")
doc.recompute()

fillet4 = body.newObject("PartDesign::Fillet", "Fillet003")
fillet4.Base = (fillet3, edges_at(fillet3, [
    (31.011, 110.482, -400.71),
    (31.011, 78.732, -400.71),
    (-44.313, 78.732, -400.71),
    (-44.313, 110.482, -400.71),
]))
fillet4.Radius = Q("0.375 in")

doc.recompute()
